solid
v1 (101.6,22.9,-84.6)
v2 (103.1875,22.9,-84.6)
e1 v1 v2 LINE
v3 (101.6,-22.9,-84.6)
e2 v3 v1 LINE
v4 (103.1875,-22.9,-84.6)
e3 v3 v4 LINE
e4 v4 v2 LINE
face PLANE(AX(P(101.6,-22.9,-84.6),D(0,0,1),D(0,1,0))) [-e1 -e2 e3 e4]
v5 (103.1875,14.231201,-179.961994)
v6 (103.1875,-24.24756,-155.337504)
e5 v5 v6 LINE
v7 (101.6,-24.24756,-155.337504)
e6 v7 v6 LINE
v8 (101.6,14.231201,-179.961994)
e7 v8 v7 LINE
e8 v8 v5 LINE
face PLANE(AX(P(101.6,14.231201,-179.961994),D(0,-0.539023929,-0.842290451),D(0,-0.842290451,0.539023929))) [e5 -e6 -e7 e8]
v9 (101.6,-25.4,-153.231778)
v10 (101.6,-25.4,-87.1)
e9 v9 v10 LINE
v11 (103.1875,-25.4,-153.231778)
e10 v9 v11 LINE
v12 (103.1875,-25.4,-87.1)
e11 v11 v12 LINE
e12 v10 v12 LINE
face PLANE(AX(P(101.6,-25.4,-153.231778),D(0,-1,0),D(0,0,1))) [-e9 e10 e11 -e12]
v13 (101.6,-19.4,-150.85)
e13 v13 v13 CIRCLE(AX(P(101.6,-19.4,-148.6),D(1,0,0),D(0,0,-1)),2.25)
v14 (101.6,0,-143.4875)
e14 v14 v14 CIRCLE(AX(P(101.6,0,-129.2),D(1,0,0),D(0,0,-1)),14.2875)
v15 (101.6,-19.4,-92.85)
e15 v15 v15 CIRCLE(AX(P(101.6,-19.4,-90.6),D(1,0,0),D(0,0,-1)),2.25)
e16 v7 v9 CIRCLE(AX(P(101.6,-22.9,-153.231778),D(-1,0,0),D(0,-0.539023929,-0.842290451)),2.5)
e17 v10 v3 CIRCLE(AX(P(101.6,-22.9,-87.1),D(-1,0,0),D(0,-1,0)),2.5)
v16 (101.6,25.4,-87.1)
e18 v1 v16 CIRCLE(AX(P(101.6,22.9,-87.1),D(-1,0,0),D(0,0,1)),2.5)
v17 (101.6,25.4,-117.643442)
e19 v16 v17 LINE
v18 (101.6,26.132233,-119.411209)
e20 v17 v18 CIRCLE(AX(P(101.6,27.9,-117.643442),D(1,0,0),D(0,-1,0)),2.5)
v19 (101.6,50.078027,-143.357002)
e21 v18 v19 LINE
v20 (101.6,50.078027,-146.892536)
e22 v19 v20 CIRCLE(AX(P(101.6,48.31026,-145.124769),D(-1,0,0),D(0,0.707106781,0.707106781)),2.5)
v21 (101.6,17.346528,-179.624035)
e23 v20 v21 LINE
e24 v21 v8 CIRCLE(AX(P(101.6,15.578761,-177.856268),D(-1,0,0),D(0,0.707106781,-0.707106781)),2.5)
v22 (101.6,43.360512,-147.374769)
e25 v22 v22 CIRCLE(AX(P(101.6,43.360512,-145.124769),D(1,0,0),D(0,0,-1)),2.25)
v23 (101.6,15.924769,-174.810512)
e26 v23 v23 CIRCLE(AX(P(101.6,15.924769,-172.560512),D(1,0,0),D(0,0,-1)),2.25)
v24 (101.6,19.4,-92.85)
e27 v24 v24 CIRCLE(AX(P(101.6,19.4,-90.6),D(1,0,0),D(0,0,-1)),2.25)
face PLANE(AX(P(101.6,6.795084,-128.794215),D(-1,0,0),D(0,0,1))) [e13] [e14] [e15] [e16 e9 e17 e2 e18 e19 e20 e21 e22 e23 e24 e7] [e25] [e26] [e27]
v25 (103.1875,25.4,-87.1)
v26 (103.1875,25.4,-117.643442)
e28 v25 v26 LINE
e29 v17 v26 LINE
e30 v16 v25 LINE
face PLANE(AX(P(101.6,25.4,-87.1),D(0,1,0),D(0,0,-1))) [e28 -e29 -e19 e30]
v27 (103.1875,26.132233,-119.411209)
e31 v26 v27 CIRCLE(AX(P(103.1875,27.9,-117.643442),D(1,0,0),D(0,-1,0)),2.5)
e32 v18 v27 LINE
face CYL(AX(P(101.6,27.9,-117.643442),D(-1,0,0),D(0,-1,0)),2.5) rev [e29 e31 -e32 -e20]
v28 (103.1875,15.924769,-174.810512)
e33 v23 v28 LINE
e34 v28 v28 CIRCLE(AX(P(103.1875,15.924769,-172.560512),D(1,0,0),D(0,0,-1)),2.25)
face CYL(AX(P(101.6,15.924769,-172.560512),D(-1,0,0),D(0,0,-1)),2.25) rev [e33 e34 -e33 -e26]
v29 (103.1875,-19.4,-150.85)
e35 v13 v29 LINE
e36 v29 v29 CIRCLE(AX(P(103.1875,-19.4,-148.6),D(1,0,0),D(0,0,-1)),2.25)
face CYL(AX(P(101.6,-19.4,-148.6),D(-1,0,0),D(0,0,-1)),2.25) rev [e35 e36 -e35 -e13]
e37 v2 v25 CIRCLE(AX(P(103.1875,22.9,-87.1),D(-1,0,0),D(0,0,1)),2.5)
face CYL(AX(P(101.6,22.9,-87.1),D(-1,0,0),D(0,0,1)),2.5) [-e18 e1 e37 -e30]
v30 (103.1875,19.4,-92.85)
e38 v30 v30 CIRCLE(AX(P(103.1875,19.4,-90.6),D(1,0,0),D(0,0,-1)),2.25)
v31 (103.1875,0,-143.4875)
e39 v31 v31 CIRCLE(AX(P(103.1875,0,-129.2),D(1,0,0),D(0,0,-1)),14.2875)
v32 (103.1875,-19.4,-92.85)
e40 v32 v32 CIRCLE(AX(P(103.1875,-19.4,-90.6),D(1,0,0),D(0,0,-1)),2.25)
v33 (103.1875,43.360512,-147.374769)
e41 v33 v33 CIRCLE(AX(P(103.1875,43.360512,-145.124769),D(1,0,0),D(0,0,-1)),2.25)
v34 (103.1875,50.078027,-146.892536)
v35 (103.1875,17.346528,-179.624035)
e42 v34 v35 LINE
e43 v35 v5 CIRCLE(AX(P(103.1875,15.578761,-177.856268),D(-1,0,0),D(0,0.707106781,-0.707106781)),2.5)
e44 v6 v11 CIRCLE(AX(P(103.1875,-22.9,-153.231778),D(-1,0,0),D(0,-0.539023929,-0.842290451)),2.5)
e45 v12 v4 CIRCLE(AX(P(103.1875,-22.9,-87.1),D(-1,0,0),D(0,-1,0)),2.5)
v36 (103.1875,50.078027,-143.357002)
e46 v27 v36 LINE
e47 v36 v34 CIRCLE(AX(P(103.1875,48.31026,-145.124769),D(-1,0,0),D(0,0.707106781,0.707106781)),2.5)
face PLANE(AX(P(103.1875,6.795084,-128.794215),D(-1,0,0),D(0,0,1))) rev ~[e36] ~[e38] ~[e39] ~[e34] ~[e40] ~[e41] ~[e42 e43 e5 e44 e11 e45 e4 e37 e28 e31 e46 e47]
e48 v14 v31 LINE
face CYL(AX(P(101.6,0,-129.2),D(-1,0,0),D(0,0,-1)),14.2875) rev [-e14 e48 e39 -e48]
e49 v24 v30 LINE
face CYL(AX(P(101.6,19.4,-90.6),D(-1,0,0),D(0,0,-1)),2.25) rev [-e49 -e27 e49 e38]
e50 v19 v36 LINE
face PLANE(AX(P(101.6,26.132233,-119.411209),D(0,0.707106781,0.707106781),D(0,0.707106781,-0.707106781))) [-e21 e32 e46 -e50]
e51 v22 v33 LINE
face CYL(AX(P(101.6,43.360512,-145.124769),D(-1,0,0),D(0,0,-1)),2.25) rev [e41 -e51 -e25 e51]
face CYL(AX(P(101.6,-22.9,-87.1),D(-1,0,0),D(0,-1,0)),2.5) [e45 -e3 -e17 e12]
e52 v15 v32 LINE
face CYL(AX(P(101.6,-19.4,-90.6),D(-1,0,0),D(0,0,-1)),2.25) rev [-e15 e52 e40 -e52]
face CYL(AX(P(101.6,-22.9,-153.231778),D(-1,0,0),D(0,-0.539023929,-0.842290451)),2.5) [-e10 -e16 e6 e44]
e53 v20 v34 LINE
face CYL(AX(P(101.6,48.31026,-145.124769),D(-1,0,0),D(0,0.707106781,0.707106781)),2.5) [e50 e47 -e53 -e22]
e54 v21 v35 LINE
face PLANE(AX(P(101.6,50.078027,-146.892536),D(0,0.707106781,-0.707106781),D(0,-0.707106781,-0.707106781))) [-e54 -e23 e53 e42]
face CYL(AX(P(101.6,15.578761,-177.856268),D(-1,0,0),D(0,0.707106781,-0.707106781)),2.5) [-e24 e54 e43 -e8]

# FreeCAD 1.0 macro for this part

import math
import FreeCAD as App
import Part
import Sketcher

V = App.Vector

doc = App.newDocument("Part")
body = doc.addObject("PartDesign::Body", "Body")

# Sketch on YZ plane
sketch1 = body.newObject("Sketcher::SketchObject", "Sketch")
sketch1.AttachmentSupport = (doc.getObject("YZ_Plane"), [""])
sketch1.MapMode = "FlatFace"
sketch1.AttachmentOffset = App.Placement(V(0, 0, 101.6), App.Rotation())
sketch1.addGeometry([
    Part.LineSegment(V(-25.4, -87.1, 0), V(-25.4, -153.2, 0)),  # 0
    Part.ArcOfCircle(Part.Circle(V(-22.9, -153.2, 0), V(0, 0, 1), 2.5), math.radians(180), math.radians(237)),  # 1
    Part.LineSegment(V(-24.2, -155.3, 0), V(14.2, -180, 0)),  # 2
    Part.ArcOfCircle(Part.Circle(V(15.6, -177.9, 0), V(0, 0, 1), 2.5), math.radians(-123), math.radians(-45)),  # 3
    Part.LineSegment(V(17.3, -179.6, 0), V(50.1, -146.9, 0)),  # 4
    Part.ArcOfCircle(Part.Circle(V(48.3, -145.1, 0), V(0, 0, 1), 2.5), math.radians(-45), math.radians(45)),  # 5
    Part.LineSegment(V(50.1, -143.4, 0), V(26.1, -119.4, 0)),  # 6
    Part.ArcOfCircle(Part.Circle(V(27.9, -117.6, 0), V(0, 0, 1), 2.5), math.radians(-180), math.radians(-135)),  # 7
    Part.LineSegment(V(25.4, -117.6, 0), V(25.4, -87.1, 0)),  # 8
    Part.ArcOfCircle(Part.Circle(V(22.9, -87.1, 0), V(0, 0, 1), 2.5), math.radians(0), math.radians(90)),  # 9
    Part.LineSegment(V(22.9, -84.6, 0), V(-22.9, -84.6, 0)),  # 10
    Part.ArcOfCircle(Part.Circle(V(-22.9, -87.1, 0), V(0, 0, 1), 2.5), math.radians(90), math.radians(180)),  # 11
    Part.Circle(V(-19.4, -148.6, 0), V(0, 0, 1), 2.2),  # 12
    Part.Circle(V(-19.4, -90.6, 0), V(0, 0, 1), 2.2),  # 13
    Part.Circle(V(0, -129.2, 0), V(0, 0, 1), 14.3),  # 14
    Part.Circle(V(15.9, -172.6, 0), V(0, 0, 1), 2.2),  # 15
    Part.Circle(V(43.4, -145.1, 0), V(0, 0, 1), 2.2),  # 16
    Part.Circle(V(19.4, -90.6, 0), V(0, 0, 1), 2.2),  # 17
], False)
sketch1.addConstraint([
    Sketcher.Constraint("Tangent", 0, 2, 1, 1),
    Sketcher.Constraint("Tangent", 1, 2, 2, 1),
    Sketcher.Constraint("Tangent", 2, 2, 3, 1),
    Sketcher.Constraint("Tangent", 3, 2, 4, 1),
    Sketcher.Constraint("Tangent", 4, 2, 5, 1),
    Sketcher.Constraint("Tangent", 5, 2, 6, 1),
    Sketcher.Constraint("Tangent", 6, 2, 7, 2),
    Sketcher.Constraint("Tangent", 7, 1, 8, 1),
    Sketcher.Constraint("Tangent", 8, 2, 9, 1),
    Sketcher.Constraint("Tangent", 9, 2, 10, 1),
    Sketcher.Constraint("Tangent", 10, 2, 11, 1),
    Sketcher.Constraint("Tangent", 11, 2, 0, 1),
    Sketcher.Constraint("Vertical", 0),
    Sketcher.Constraint("Vertical", 8),
    Sketcher.Constraint("Horizontal", 10),
    Sketcher.Constraint("Equal", 1, 3),
    Sketcher.Constraint("Equal", 3, 5),
    Sketcher.Constraint("Equal", 5, 7),
    Sketcher.Constraint("Equal", 7, 9),
    Sketcher.Constraint("Equal", 9, 11),
    Sketcher.Constraint("Equal", 12, 13),
    Sketcher.Constraint("Equal", 13, 15),
    Sketcher.Constraint("Equal", 15, 16),
    Sketcher.Constraint("Equal", 16, 17),
    Sketcher.Constraint("Symmetric", 13, 3, 17, 3, -2),
    Sketcher.Constraint("PointOnObject", 14, 3, -2),
    Sketcher.Constraint("Perpendicular", 4, 6),
    Sketcher.Constraint("Horizontal", 5, 3, 16, 3),
    Sketcher.Constraint("Vertical", 12, 3, 13, 3),
    Sketcher.Constraint("Vertical", 4, 2, 5, 2),
    Sketcher.Constraint("Diameter", 12, 4.5),
    Sketcher.Constraint("Radius", 1, 2.5),
    Sketcher.Constraint("Diameter", 14, 28.575),
    Sketcher.Constraint("DistanceX", 10, 2, 10, 1, 45.8),
    Sketcher.Constraint("DistanceY", 12, 3, 13, 3, 58.0),
    Sketcher.Constraint("DistanceX", 0, 2, 12, 3, 6.0),
    Sketcher.Constraint("DistanceX", 17, 3, 7, 1, 6.0),
    Sketcher.Constraint("DistanceY", 17, 3, 9, 2, 6.0),
    Sketcher.Constraint("DistanceY", 9, 3, -1, 1, 87.1),
    Sketcher.Constraint("DistanceY", 14, 3, -1, 1, 129.2),
    Sketcher.Constraint("DistanceY", 0, 2, 0, 1, 66.131778),
    Sketcher.Constraint("DistanceY", 8, 1, 8, 2, 30.543442),
    Sketcher.Constraint("DistanceX", -1, 1, 2, 2, 14.231201),
    Sketcher.Constraint("DistanceX", 3, 3, 5, 3, 32.731499),
    Sketcher.Constraint("DistanceX", -1, 1, 15, 3, 15.924769),
    Sketcher.Constraint("DistanceX", 3, 3, 16, 3, 27.781752),
    Sketcher.Constraint("DistanceY", 15, 3, 5, 2, 29.20351),
])
pad1 = body.newObject("PartDesign::Pad", "Pad")
pad1.Profile = sketch1
pad1.Length = 1.5875

doc.recompute()
